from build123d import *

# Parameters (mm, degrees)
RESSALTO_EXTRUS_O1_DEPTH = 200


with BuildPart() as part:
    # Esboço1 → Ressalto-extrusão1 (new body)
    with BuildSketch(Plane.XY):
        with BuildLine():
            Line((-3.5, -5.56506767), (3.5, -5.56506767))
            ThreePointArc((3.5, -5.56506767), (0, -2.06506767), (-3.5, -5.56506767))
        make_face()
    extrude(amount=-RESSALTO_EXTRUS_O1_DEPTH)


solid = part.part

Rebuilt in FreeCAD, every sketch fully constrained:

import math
import FreeCAD as App
import Part
import Sketcher

V = App.Vector
Q = App.Units.Quantity

doc = App.newDocument("Part")
params = doc.addObject("Spreadsheet::Sheet", "Params")
for row, (alias, value) in enumerate([
    ("sketch1_radius", "3.5 mm"),
    ("pad1_length", "200 mm"),
], start=1):
    params.set(f"A{row}", alias)
    params.set(f"B{row}", "=" + value)
    params.setAlias(f"B{row}", alias)

body = doc.addObject("PartDesign::Body", "Body")

sketch1 = doc.addObject("Sketcher::SketchObject", "Sketch")
body.addObject(sketch1)
sketch1.AttachmentSupport = (doc.XY_Plane, [""])
sketch1.MapMode = "FlatFace"
sketch1.addGeometry(Part.LineSegment(V(-3.5, -5.6, 0), V(3.5, -5.6, 0)), False)
sketch1.addGeometry(Part.ArcOfCircle(Part.Circle(V(0, -5.6, 0), V(0, 0, 1), 3.5), math.radians(0), math.radians(180)), False)
sketch1.addConstraint(Sketcher.Constraint("Coincident", 0, 1, 1, 2))
sketch1.addConstraint(Sketcher.Constraint("Coincident", 1, 1, 0, 2))
sketch1.addConstraint(Sketcher.Constraint("Horizontal", 0))
sketch1.addConstraint(Sketcher.Constraint("PointOnObject", 1, 3, -2))
sketch1.addConstraint(Sketcher.Constraint("Horizontal", 1, 3, 0, 1))
sketch1.addConstraint(Sketcher.Constraint("Radius", 1, Q("3.5 mm")))
sketch1.addConstraint(Sketcher.Constraint("DistanceY", 1, 3, -1, 1, Q("5.565068 mm")))
sketch1.setExpression("Constraints[5]", "Params.sketch1_radius")
pad1 = doc.addObject("PartDesign::Pad", "Pad")
body.addObject(pad1)
pad1.Profile = sketch1
pad1.setExpression("Length", "Params.pad1_length")
pad1.Reversed = True

doc.recompute()
